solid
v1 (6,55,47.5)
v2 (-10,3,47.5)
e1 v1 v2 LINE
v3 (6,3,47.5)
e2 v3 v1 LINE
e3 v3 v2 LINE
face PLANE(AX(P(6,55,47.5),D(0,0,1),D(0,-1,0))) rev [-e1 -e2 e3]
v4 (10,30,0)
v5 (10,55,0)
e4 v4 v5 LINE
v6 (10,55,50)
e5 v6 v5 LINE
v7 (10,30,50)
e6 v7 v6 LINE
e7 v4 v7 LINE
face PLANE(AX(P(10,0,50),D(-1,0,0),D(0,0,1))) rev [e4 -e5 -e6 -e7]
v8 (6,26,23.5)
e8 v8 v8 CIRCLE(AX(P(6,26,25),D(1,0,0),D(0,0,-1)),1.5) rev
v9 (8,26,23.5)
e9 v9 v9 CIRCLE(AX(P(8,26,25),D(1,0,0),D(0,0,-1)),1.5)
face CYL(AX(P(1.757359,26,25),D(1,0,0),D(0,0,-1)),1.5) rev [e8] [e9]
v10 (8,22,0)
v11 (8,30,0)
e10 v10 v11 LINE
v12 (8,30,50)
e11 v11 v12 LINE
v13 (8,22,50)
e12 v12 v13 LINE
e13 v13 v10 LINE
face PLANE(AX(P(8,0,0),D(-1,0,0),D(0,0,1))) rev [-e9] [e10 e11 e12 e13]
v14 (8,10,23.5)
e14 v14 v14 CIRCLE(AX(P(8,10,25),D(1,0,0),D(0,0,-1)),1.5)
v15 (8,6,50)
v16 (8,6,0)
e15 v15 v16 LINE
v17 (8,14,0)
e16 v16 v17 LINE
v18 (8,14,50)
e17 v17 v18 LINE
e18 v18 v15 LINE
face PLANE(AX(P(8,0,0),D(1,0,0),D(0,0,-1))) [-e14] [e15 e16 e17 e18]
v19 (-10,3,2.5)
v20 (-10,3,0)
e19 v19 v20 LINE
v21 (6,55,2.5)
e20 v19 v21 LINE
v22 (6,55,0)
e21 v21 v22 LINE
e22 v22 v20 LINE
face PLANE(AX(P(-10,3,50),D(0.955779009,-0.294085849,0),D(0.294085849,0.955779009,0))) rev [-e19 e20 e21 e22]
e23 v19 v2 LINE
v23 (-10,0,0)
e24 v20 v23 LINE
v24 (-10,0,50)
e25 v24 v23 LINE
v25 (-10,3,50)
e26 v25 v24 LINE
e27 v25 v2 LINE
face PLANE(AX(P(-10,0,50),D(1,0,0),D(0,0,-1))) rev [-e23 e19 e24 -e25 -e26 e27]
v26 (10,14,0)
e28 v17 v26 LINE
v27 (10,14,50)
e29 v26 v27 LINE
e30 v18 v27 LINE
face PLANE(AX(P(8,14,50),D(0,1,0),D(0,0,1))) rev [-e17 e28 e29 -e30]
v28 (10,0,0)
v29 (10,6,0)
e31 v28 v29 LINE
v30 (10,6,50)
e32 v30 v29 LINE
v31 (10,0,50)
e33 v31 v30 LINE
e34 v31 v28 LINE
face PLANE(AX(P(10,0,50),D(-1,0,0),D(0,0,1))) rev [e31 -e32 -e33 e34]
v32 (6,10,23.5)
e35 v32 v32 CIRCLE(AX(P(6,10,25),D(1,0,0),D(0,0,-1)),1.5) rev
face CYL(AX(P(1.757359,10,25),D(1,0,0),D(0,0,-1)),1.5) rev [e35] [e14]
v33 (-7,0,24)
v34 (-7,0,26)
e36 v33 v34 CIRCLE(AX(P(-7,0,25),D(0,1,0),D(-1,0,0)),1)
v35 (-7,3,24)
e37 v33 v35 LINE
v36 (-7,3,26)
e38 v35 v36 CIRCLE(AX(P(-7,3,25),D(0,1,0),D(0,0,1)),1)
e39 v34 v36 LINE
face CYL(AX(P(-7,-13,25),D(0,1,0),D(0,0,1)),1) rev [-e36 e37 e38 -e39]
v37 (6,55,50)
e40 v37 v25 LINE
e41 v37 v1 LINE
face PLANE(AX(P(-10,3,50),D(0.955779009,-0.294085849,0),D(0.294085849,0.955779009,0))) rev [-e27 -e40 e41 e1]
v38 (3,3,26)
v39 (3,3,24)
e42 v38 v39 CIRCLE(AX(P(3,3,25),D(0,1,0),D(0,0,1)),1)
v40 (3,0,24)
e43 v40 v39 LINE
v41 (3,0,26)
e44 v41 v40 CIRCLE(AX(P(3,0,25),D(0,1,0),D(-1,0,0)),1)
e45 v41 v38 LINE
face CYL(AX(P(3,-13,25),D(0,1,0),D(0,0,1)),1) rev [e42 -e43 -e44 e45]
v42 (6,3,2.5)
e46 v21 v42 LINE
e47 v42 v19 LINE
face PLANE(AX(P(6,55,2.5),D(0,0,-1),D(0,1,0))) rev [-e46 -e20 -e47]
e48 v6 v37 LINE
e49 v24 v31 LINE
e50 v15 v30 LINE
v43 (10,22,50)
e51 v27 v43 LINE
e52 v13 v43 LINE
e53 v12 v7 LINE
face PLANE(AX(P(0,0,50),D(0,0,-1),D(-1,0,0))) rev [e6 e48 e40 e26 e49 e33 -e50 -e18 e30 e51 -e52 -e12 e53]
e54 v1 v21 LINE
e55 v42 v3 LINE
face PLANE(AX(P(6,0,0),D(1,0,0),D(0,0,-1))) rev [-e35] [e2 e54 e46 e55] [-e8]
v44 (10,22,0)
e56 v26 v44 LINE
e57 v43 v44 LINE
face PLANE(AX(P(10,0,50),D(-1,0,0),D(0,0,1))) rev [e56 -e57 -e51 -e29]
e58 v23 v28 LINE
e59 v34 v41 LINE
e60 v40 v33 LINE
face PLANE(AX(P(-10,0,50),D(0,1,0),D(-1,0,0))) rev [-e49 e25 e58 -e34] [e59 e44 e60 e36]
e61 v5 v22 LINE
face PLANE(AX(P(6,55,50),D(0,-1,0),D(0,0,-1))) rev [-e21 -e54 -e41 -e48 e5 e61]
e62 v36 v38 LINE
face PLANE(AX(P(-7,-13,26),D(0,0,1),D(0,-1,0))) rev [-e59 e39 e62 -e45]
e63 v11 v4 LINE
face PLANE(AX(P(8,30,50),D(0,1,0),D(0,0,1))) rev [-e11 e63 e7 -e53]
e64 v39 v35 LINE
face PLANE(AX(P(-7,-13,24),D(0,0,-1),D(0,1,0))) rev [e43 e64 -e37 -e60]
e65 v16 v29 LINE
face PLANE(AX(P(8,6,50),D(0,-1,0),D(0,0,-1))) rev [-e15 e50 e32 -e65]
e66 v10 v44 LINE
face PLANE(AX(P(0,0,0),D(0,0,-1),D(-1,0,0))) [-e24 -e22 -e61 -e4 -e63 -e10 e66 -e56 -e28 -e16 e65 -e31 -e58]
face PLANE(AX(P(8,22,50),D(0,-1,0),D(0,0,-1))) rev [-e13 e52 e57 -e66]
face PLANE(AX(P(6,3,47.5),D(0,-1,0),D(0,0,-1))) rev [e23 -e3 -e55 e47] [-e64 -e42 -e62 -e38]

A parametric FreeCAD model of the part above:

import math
import FreeCAD as App
import Part
import Sketcher


def add_polygon(sketch, points):
    """Adds a closed chain of lines whose ends are joined by coincident constraints."""
    first, n = sketch.GeometryCount, len(points)
    for a, b in zip(points, points[1:] + points[:1]):
        sketch.addGeometry(Part.LineSegment(App.Vector(*a, 0), App.Vector(*b, 0)), False)
    for i in range(n):
        sketch.addConstraint(Sketcher.Constraint("Coincident", first + i, 2, first + (i + 1) % n, 1))

doc = App.newDocument("Part")
body = doc.addObject("PartDesign::Body", "Body")

# Sketch on XY plane
sketch1 = body.newObject("Sketcher::SketchObject", "Sketch")
sketch1.AttachmentSupport = (doc.getObject("XY_Plane"), [""])
sketch1.MapMode = "FlatFace"
add_polygon(sketch1, [(-10, 0), (10, 0), (10, 55), (6, 55), (-10, 3)])  # lines 0-4
sketch1.addConstraint([
    Sketcher.Constraint("Horizontal", 0),
    Sketcher.Constraint("Vertical", 1),
    Sketcher.Constraint("Horizontal", 2),
    Sketcher.Constraint("Vertical", 4),
    Sketcher.Constraint("Symmetric", 0, 2, 4, 2, -1, 1),
    Sketcher.Constraint("DistanceX", 0, 1, 0, 2, 20.0),
    Sketcher.Constraint("DistanceX", 2, 2, 2, 1, 4.0),
    Sketcher.Constraint("DistanceY", 1, 1, 1, 2, 55.0),
    Sketcher.Constraint("DistanceY", 4, 2, 4, 1, 3.0),
])
pad1 = body.newObject("PartDesign::Pad", "Pad")
pad1.Profile = sketch1
pad1.Length = 50

# Sketch on YZ plane
sketch2 = body.newObject("Sketcher::SketchObject", "Sketch001")
sketch2.AttachmentSupport = (doc.getObject("YZ_Plane"), [""])
sketch2.MapMode = "FlatFace"
sketch2.AttachmentOffset = App.Placement(App.Vector(0, 0, 10), App.Rotation())
add_polygon(sketch2, [(14, 50), (6, 50), (6, 0), (14, 0)])  # lines 0-3
add_polygon(sketch2, [(30, 50), (22, 50), (22, 0), (30, 0)])  # lines 4-7
sketch2.addConstraint([
    Sketcher.Constraint("Horizontal", 0),
    Sketcher.Constraint("Vertical", 1),
    Sketcher.Constraint("Horizontal", 2),
    Sketcher.Constraint("Vertical", 3),
    Sketcher.Constraint("Horizontal", 4),
    Sketcher.Constraint("Vertical", 5),
    Sketcher.Constraint("Horizontal", 6),
    Sketcher.Constraint("Vertical", 7),
    Sketcher.Constraint("PointOnObject", 1, 2, -1),
    Sketcher.Constraint("PointOnObject", 5, 2, -1),
    Sketcher.Constraint("Horizontal", 3, 2, 4, 2),
    Sketcher.Constraint("Equal", 2, 4),
    Sketcher.Constraint("DistanceX", 0, 2, 0, 1, 8.0),
    Sketcher.Constraint("DistanceY", 1, 2, 1, 1, 50.0),
    Sketcher.Constraint("DistanceX", -1, 1, 0, 2, 6.0),
    Sketcher.Constraint("DistanceX", -1, 1, 4, 2, 22.0),
])
pocket1 = body.newObject("PartDesign::Pocket", "Pocket")
pocket1.Profile = sketch2
pocket1.Length = 2

# Sketch on YZ plane
sketch3 = body.newObject("Sketcher::SketchObject", "Sketch002")
sketch3.AttachmentSupport = (doc.getObject("YZ_Plane"), [""])
sketch3.MapMode = "FlatFace"
sketch3.AttachmentOffset = App.Placement(App.Vector(0, 0, -10), App.Rotation())
add_polygon(sketch3, [(55, 2), (3, 2), (3, 48), (55, 48)])  # lines 0-3
sketch3.addConstraint([
    Sketcher.Constraint("Horizontal", 0),
    Sketcher.Constraint("Vertical", 1),
    Sketcher.Constraint("Horizontal", 2),
    Sketcher.Constraint("Vertical", 3),
    Sketcher.Constraint("DistanceX", 0, 2, 0, 1, 52.0),
    Sketcher.Constraint("DistanceY", 1, 1, 1, 2, 45.0),
    Sketcher.Constraint("DistanceX", -1, 1, 0, 2, 3.0),
    Sketcher.Constraint("DistanceY", -1, 1, 0, 2, 2.5),
])
pocket2 = body.newObject("PartDesign::Pocket", "Pocket001")
pocket2.Profile = sketch3
pocket2.Length = 16
pocket2.Reversed = True

# Sketch on YZ plane
sketch4 = body.newObject("Sketcher::SketchObject", "Sketch003")
sketch4.AttachmentSupport = (doc.getObject("YZ_Plane"), [""])
sketch4.MapMode = "FlatFace"
sketch4.AttachmentOffset = App.Placement(App.Vector(0, 0, 8), App.Rotation())
sketch4.addGeometry([
    Part.Circle(App.Vector(26, 25, 0), App.Vector(0, 0, 1), 1.5),
    Part.Circle(App.Vector(10, 25, 0), App.Vector(0, 0, 1), 1.5),
], False)
sketch4.addConstraint([
    Sketcher.Constraint("Equal", 0, 1),
    Sketcher.Constraint("Horizontal", 0, 3, 1, 3),
    Sketcher.Constraint("Diameter", 0, 3.0),
    Sketcher.Constraint("DistanceX", -1, 1, 0, 3, 26.0),
    Sketcher.Constraint("DistanceY", -1, 1, 0, 3, 25.0),
    Sketcher.Constraint("DistanceX", -1, 1, 1, 3, 10.0),
])
pocket3 = body.newObject("PartDesign::Pocket", "Pocket002")
pocket3.Profile = sketch4
pocket3.Length = 2

# Sketch on XZ plane
sketch5 = body.newObject("Sketcher::SketchObject", "Sketch004")
sketch5.AttachmentSupport = (doc.getObject("XZ_Plane"), [""])
sketch5.MapMode = "FlatFace"
sketch5.AttachmentOffset = App.Placement(App.Vector(0, 0, -3), App.Rotation())
sketch5.addGeometry([
    Part.LineSegment(App.Vector(3, 24, 0), App.Vector(-7, 24, 0)),
    Part.ArcOfCircle(Part.Circle(App.Vector(-7, 25, 0), App.Vector(0, 0, 1), 1), math.radians(90), math.radians(270)),
    Part.LineSegment(App.Vector(-7, 26, 0), App.Vector(3, 26, 0)),
    Part.ArcOfCircle(Part.Circle(App.Vector(3, 25, 0), App.Vector(0, 0, 1), 1), math.radians(-90), math.radians(90)),
], False)
sketch5.addConstraint([
    Sketcher.Constraint("Tangent", 0, 2, 1, 2),
    Sketcher.Constraint("Tangent", 1, 1, 2, 1),
    Sketcher.Constraint("Tangent", 2, 2, 3, 2),
    Sketcher.Constraint("Tangent", 3, 1, 0, 1),
    Sketcher.Constraint("Horizontal", 0),
    Sketcher.Constraint("Horizontal", 2),
    Sketcher.Constraint("Radius", 1, 1.0),
    Sketcher.Constraint("DistanceX", 0, 2, 0, 1, 10.0),
    Sketcher.Constraint("DistanceX", 1, 3, -1, 1, 7.0),
    Sketcher.Constraint("DistanceY", -1, 1, 1, 3, 25.0),
])
pocket4 = body.newObject("PartDesign::Pocket", "Pocket003")
pocket4.Profile = sketch5
pocket4.Length = 16
pocket4.Reversed = True

doc.recompute()
